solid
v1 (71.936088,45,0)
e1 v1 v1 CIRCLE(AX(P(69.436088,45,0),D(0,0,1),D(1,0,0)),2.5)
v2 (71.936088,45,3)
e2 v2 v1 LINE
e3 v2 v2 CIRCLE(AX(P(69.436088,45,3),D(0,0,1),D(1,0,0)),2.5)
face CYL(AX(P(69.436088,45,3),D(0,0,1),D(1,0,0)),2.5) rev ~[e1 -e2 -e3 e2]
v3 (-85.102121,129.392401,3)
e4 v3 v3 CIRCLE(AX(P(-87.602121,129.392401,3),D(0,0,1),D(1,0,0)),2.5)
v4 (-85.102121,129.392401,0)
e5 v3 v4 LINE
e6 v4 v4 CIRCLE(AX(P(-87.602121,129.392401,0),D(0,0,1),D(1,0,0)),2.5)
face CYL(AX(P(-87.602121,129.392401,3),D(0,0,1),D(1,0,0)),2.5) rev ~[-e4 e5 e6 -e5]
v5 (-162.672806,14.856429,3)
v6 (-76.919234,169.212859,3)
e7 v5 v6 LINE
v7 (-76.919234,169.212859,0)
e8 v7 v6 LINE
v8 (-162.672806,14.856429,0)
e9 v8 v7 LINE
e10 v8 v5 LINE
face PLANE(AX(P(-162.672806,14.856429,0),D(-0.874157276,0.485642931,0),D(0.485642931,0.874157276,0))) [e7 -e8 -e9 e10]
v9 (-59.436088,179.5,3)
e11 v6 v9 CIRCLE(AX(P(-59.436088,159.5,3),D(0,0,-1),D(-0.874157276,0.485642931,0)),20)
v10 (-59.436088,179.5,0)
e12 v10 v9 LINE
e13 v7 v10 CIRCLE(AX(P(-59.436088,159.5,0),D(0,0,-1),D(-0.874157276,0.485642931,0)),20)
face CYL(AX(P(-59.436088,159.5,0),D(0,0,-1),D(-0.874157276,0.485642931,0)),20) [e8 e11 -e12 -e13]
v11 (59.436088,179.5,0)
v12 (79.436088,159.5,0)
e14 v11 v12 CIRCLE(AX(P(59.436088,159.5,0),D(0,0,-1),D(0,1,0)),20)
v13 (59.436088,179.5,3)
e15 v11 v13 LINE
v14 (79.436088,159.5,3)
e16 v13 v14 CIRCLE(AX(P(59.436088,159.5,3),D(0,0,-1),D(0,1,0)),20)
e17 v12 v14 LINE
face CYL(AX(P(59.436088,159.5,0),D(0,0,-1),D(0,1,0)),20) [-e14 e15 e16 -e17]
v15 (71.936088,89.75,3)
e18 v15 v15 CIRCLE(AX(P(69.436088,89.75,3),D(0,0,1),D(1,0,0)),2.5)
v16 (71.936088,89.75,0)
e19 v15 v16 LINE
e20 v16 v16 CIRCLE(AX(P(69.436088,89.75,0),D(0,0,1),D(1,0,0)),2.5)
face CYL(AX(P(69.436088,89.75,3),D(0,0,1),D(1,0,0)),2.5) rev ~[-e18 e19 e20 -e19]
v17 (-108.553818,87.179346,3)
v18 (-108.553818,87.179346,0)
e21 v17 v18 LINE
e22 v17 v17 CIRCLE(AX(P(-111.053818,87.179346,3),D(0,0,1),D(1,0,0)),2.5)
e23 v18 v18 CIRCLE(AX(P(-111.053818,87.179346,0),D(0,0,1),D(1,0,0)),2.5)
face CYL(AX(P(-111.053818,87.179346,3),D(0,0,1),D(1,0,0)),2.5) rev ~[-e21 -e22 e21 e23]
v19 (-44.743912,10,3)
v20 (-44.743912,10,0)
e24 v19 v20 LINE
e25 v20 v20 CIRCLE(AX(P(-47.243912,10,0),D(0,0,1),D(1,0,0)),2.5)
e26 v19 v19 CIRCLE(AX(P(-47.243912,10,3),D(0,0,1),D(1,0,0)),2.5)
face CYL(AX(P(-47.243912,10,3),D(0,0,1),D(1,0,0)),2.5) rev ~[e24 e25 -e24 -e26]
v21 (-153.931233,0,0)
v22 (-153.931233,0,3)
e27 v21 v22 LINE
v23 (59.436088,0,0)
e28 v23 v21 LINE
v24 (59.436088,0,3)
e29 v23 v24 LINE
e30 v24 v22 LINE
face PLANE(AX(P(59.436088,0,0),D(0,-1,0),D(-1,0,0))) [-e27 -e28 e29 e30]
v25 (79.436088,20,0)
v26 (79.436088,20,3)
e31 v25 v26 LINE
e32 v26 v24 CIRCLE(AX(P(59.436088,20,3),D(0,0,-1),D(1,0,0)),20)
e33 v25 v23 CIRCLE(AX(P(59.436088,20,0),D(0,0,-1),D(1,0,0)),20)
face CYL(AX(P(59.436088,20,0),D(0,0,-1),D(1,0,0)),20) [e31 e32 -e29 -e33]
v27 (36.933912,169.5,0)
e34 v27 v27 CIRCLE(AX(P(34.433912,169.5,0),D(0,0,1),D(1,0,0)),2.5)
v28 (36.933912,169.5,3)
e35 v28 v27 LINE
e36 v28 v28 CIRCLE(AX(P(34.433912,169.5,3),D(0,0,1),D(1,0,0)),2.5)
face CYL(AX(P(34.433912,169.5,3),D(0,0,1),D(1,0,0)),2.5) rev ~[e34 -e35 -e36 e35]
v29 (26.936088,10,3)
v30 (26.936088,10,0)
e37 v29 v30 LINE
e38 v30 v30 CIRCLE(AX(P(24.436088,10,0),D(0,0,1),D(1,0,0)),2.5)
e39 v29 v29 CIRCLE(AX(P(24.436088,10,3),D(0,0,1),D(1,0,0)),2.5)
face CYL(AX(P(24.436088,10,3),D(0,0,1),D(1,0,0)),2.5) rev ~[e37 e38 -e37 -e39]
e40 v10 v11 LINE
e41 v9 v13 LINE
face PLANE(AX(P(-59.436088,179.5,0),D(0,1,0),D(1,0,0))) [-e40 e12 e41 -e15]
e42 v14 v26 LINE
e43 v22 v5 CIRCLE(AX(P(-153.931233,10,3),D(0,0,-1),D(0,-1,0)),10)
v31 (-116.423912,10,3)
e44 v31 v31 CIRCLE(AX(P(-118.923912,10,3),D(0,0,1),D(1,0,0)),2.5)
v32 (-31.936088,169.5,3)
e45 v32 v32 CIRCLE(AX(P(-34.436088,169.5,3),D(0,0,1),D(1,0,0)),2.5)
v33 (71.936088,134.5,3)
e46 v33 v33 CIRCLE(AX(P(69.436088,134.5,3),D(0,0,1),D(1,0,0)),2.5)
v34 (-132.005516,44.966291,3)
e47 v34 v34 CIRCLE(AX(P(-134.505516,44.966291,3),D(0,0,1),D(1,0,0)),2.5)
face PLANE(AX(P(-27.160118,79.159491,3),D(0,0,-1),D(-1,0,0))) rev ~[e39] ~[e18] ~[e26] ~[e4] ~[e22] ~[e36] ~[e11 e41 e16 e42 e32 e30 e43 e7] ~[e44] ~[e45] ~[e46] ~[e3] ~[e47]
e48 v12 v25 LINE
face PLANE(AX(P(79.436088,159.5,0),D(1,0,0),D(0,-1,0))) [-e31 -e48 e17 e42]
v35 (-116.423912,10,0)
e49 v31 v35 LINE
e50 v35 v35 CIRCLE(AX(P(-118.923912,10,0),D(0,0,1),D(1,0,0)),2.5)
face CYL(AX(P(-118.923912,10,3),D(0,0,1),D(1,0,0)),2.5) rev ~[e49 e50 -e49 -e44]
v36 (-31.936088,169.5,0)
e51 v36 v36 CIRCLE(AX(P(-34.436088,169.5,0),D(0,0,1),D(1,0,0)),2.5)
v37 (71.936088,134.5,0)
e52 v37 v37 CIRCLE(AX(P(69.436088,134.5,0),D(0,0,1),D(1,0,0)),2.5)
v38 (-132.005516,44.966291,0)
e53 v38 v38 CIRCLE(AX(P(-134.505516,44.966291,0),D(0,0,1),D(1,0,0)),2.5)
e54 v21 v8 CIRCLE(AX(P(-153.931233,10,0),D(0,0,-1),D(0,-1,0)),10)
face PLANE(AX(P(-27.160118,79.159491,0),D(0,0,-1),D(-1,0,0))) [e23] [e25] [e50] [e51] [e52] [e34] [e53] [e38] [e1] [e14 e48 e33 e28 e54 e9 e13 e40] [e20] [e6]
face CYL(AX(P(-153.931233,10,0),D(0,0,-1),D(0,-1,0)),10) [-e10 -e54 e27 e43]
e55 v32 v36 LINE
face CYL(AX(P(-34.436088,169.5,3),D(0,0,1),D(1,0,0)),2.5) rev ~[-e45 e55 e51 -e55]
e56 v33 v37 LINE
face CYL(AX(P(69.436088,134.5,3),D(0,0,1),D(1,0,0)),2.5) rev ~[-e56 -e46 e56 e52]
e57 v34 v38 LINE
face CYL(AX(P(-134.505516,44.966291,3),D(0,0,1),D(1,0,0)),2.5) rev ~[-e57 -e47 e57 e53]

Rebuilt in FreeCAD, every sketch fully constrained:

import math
import FreeCAD as App
import Part
import Sketcher
from FreeCAD import Vector
Q = App.Units.Quantity

doc = App.newDocument("Part")
body = doc.addObject("PartDesign::Body", "Body")

# Sketch on XY plane
sketch1 = body.newObject("Sketcher::SketchObject", "Sketch")
sketch1.AttachmentSupport = (doc.getObject("XY_Plane"), [""])
sketch1.MapMode = "FlatFace"
sketch1.addGeometry([
    Part.LineSegment(Vector(59, 180, 0), Vector(-59, 180, 0)),  # 0
    Part.ArcOfCircle(Part.Circle(Vector(-59, 159, 0), Vector(0, 0, 1), 20), math.radians(90), math.radians(151)),  # 1
    Part.LineSegment(Vector(-77, 169, 0), Vector(-163, 15, 0)),  # 2
    Part.ArcOfCircle(Part.Circle(Vector(-154, 10, 0), Vector(0, 0, 1), 10), math.radians(151), math.radians(270)),  # 3
    Part.LineSegment(Vector(-154, 0, 0), Vector(59, 0, 0)),  # 4
    Part.ArcOfCircle(Part.Circle(Vector(59, 20, 0), Vector(0, 0, 1), 20), math.radians(-90), math.radians(0)),  # 5
    Part.LineSegment(Vector(79, 20, 0), Vector(79, 160, 0)),  # 6
    Part.ArcOfCircle(Part.Circle(Vector(59, 160, 0), Vector(0, 0, 1), 20), math.radians(0), math.radians(90)),  # 7
], False)
sketch1.addConstraint([
    Sketcher.Constraint("Tangent", 0, 2, 1, 1),
    Sketcher.Constraint("Tangent", 1, 2, 2, 1),
    Sketcher.Constraint("Tangent", 2, 2, 3, 1),
    Sketcher.Constraint("Tangent", 3, 2, 4, 1),
    Sketcher.Constraint("Tangent", 4, 2, 5, 1),
    Sketcher.Constraint("Tangent", 5, 2, 6, 1),
    Sketcher.Constraint("Tangent", 6, 2, 7, 1),
    Sketcher.Constraint("Tangent", 7, 2, 0, 1),
    Sketcher.Constraint("Horizontal", 0),
    Sketcher.Constraint("Horizontal", 4),
    Sketcher.Constraint("Vertical", 6),
    Sketcher.Constraint("Equal", 1, 5),
    Sketcher.Constraint("Equal", 5, 7),
    Sketcher.Constraint("PointOnObject", 3, 2, -1),
    Sketcher.Constraint("Radius", 1, Q("20 mm")),
    Sketcher.Constraint("Radius", 3, Q("10 mm")),
    Sketcher.Constraint("DistanceY", 6, 1, 6, 2, Q("139.5 mm")),
    Sketcher.Constraint("DistanceX", 3, 3, 1, 2, Q("77.011999 mm")),
    Sketcher.Constraint("DistanceX", 4, 1, 4, 2, Q("213.367321 mm")),
    Sketcher.Constraint("DistanceX", 1, 3, -1, 1, Q("59.436088 mm")),
])
pad1 = body.newObject("PartDesign::Pad", "Pad")
pad1.Profile = sketch1
pad1.Length = 3

# Sketch on XY plane
sketch2 = body.newObject("Sketcher::SketchObject", "Sketch001")
sketch2.AttachmentSupport = (doc.getObject("XY_Plane"), [""])
sketch2.MapMode = "FlatFace"
sketch2.AttachmentOffset = App.Placement(Vector(0, 0, 3), App.Rotation())
sketch2.addGeometry(Part.Circle(Vector(-34.4, 169.5, 0), Vector(0, 0, 1), 2.5), False)
sketch2.addConstraint([
    Sketcher.Constraint("Diameter", 0, Q("5 mm")),
    Sketcher.Constraint("DistanceY", -1, 1, 0, 3, Q("169.5 mm")),
    Sketcher.Constraint("DistanceX", 0, 3, -1, 1, Q("34.436088 mm")),
])
pocket1 = body.newObject("PartDesign::Pocket", "Pocket")
pocket1.Profile = sketch2
pocket1.Type = "UpToFirst"

# Sketch on XY plane
sketch3 = body.newObject("Sketcher::SketchObject", "Sketch002")
sketch3.AttachmentSupport = (doc.getObject("XY_Plane"), [""])
sketch3.MapMode = "FlatFace"
sketch3.AttachmentOffset = App.Placement(Vector(0, 0, 3), App.Rotation())
sketch3.addGeometry(Part.Circle(Vector(34.4, 169.5, 0), Vector(0, 0, 1), 2.5), False)
sketch3.addConstraint([
    Sketcher.Constraint("Diameter", 0, Q("5 mm")),
    Sketcher.Constraint("DistanceY", -1, 1, 0, 3, Q("169.5 mm")),
    Sketcher.Constraint("DistanceX", -1, 1, 0, 3, Q("34.433912 mm")),
])
pocket2 = body.newObject("PartDesign::Pocket", "Pocket001")
pocket2.Profile = sketch3
pocket2.Type = "UpToFirst"

# Sketch on XY plane
sketch4 = body.newObject("Sketcher::SketchObject", "Sketch003")
sketch4.AttachmentSupport = (doc.getObject("XY_Plane"), [""])
sketch4.MapMode = "FlatFace"
sketch4.AttachmentOffset = App.Placement(Vector(0, 0, 3), App.Rotation())
sketch4.addGeometry(Part.Circle(Vector(69.4, 134.5, 0), Vector(0, 0, 1), 2.5), False)
sketch4.addConstraint([
    Sketcher.Constraint("Diameter", 0, Q("5 mm")),
    Sketcher.Constraint("DistanceY", -1, 1, 0, 3, Q("134.5 mm")),
    Sketcher.Constraint("DistanceX", -1, 1, 0, 3, Q("69.436088 mm")),
])
pocket3 = body.newObject("PartDesign::Pocket", "Pocket002")
pocket3.Profile = sketch4
pocket3.Type = "UpToFirst"

# Sketch on XY plane
sketch5 = body.newObject("Sketcher::SketchObject", "Sketch004")
sketch5.AttachmentSupport = (doc.getObject("XY_Plane"), [""])
sketch5.MapMode = "FlatFace"
sketch5.AttachmentOffset = App.Placement(Vector(0, 0, 3), App.Rotation())
sketch5.addGeometry(Part.Circle(Vector(69.4, 89.8, 0), Vector(0, 0, 1), 2.5), False)
sketch5.addConstraint([
    Sketcher.Constraint("Diameter", 0, Q("5 mm")),
    Sketcher.Constraint("DistanceY", -1, 1, 0, 3, Q("89.75 mm")),
    Sketcher.Constraint("DistanceX", -1, 1, 0, 3, Q("69.436088 mm")),
])
pocket4 = body.newObject("PartDesign::Pocket", "Pocket003")
pocket4.Profile = sketch5
pocket4.Type = "UpToFirst"

# Sketch on XY plane
sketch6 = body.newObject("Sketcher::SketchObject", "Sketch005")
sketch6.AttachmentSupport = (doc.getObject("XY_Plane"), [""])
sketch6.MapMode = "FlatFace"
sketch6.AttachmentOffset = App.Placement(Vector(0, 0, 3), App.Rotation())
sketch6.addGeometry(Part.Circle(Vector(69.4, 45, 0), Vector(0, 0, 1), 2.5), False)
sketch6.addConstraint([
    Sketcher.Constraint("Diameter", 0, Q("5 mm")),
    Sketcher.Constraint("DistanceY", -1, 1, 0, 3, Q("45 mm")),
    Sketcher.Constraint("DistanceX", -1, 1, 0, 3, Q("69.436088 mm")),
])
pocket5 = body.newObject("PartDesign::Pocket", "Pocket004")
pocket5.Profile = sketch6
pocket5.Type = "UpToFirst"

# Sketch on XY plane
sketch7 = body.newObject("Sketcher::SketchObject", "Sketch006")
sketch7.AttachmentSupport = (doc.getObject("XY_Plane"), [""])
sketch7.MapMode = "FlatFace"
sketch7.AttachmentOffset = App.Placement(Vector(0, 0, 3), App.Rotation())
sketch7.addGeometry(Part.Circle(Vector(24.4, 10, 0), Vector(0, 0, 1), 2.5), False)
sketch7.addConstraint([
    Sketcher.Constraint("Diameter", 0, Q("5 mm")),
    Sketcher.Constraint("DistanceY", -1, 1, 0, 3, Q("10 mm")),
    Sketcher.Constraint("DistanceX", -1, 1, 0, 3, Q("24.436088 mm")),
])
pocket6 = body.newObject("PartDesign::Pocket", "Pocket005")
pocket6.Profile = sketch7
pocket6.Type = "UpToFirst"

# Sketch on XY plane
sketch8 = body.newObject("Sketcher::SketchObject", "Sketch007")
sketch8.AttachmentSupport = (doc.getObject("XY_Plane"), [""])
sketch8.MapMode = "FlatFace"
sketch8.AttachmentOffset = App.Placement(Vector(0, 0, 3), App.Rotation())
sketch8.addGeometry(Part.Circle(Vector(-47.2, 10, 0), Vector(0, 0, 1), 2.5), False)
sketch8.addConstraint([
    Sketcher.Constraint("Diameter", 0, Q("5 mm")),
    Sketcher.Constraint("DistanceY", -1, 1, 0, 3, Q("10 mm")),
    Sketcher.Constraint("DistanceX", 0, 3, -1, 1, Q("47.243912 mm")),
])
pocket7 = body.newObject("PartDesign::Pocket", "Pocket006")
pocket7.Profile = sketch8
pocket7.Type = "UpToFirst"

# Sketch on XY plane
sketch9 = body.newObject("Sketcher::SketchObject", "Sketch008")
sketch9.AttachmentSupport = (doc.getObject("XY_Plane"), [""])
sketch9.MapMode = "FlatFace"
sketch9.AttachmentOffset = App.Placement(Vector(0, 0, 3), App.Rotation())
sketch9.addGeometry(Part.Circle(Vector(-118.9, 10, 0), Vector(0, 0, 1), 2.5), False)
sketch9.addConstraint([
    Sketcher.Constraint("Diameter", 0, Q("5 mm")),
    Sketcher.Constraint("DistanceY", -1, 1, 0, 3, Q("10 mm")),
    Sketcher.Constraint("DistanceX", 0, 3, -1, 1, Q("118.923912 mm")),
])
pocket8 = body.newObject("PartDesign::Pocket", "Pocket007")
pocket8.Profile = sketch9
pocket8.Type = "UpToFirst"

# Sketch on XY plane
sketch10 = body.newObject("Sketcher::SketchObject", "Sketch009")
sketch10.AttachmentSupport = (doc.getObject("XY_Plane"), [""])
sketch10.MapMode = "FlatFace"
sketch10.AttachmentOffset = App.Placement(Vector(0, 0, 3), App.Rotation())
sketch10.addGeometry(Part.Circle(Vector(-134.5, 45, 0), Vector(0, 0, 1), 2.5), False)
sketch10.addConstraint([
    Sketcher.Constraint("Diameter", 0, Q("5 mm")),
    Sketcher.Constraint("DistanceY", -1, 1, 0, 3, Q("44.966291 mm")),
    Sketcher.Constraint("DistanceX", 0, 3, -1, 1, Q("134.505516 mm")),
])
pocket9 = body.newObject("PartDesign::Pocket", "Pocket008")
pocket9.Profile = sketch10
pocket9.Type = "UpToFirst"

# Sketch on XY plane
sketch11 = body.newObject("Sketcher::SketchObject", "Sketch010")
sketch11.AttachmentSupport = (doc.getObject("XY_Plane"), [""])
sketch11.MapMode = "FlatFace"
sketch11.AttachmentOffset = App.Placement(Vector(0, 0, 3), App.Rotation())
sketch11.addGeometry(Part.Circle(Vector(-87.6, 129.4, 0), Vector(0, 0, 1), 2.5), False)
sketch11.addConstraint([
    Sketcher.Constraint("Diameter", 0, Q("5 mm")),
    Sketcher.Constraint("DistanceY", -1, 1, 0, 3, Q("129.392401 mm")),
    Sketcher.Constraint("DistanceX", 0, 3, -1, 1, Q("87.602121 mm")),
])
pocket10 = body.newObject("PartDesign::Pocket", "Pocket009")
pocket10.Profile = sketch11
pocket10.Type = "UpToFirst"

# Sketch on XY plane
sketch12 = body.newObject("Sketcher::SketchObject", "Sketch011")
sketch12.AttachmentSupport = (doc.getObject("XY_Plane"), [""])
sketch12.MapMode = "FlatFace"
sketch12.AttachmentOffset = App.Placement(Vector(0, 0, 3), App.Rotation())
sketch12.addGeometry(Part.Circle(Vector(-111.1, 87.2, 0), Vector(0, 0, 1), 2.5), False)
sketch12.addConstraint([
    Sketcher.Constraint("Diameter", 0, Q("5 mm")),
    Sketcher.Constraint("DistanceX", 0, 3, -1, 1, Q("111.053818 mm")),
    Sketcher.Constraint("DistanceY", -1, 1, 0, 3, Q("87.179346 mm")),
])
pocket11 = body.newObject("PartDesign::Pocket", "Pocket010")
pocket11.Profile = sketch12
pocket11.Type = "UpToFirst"

doc.recompute()
